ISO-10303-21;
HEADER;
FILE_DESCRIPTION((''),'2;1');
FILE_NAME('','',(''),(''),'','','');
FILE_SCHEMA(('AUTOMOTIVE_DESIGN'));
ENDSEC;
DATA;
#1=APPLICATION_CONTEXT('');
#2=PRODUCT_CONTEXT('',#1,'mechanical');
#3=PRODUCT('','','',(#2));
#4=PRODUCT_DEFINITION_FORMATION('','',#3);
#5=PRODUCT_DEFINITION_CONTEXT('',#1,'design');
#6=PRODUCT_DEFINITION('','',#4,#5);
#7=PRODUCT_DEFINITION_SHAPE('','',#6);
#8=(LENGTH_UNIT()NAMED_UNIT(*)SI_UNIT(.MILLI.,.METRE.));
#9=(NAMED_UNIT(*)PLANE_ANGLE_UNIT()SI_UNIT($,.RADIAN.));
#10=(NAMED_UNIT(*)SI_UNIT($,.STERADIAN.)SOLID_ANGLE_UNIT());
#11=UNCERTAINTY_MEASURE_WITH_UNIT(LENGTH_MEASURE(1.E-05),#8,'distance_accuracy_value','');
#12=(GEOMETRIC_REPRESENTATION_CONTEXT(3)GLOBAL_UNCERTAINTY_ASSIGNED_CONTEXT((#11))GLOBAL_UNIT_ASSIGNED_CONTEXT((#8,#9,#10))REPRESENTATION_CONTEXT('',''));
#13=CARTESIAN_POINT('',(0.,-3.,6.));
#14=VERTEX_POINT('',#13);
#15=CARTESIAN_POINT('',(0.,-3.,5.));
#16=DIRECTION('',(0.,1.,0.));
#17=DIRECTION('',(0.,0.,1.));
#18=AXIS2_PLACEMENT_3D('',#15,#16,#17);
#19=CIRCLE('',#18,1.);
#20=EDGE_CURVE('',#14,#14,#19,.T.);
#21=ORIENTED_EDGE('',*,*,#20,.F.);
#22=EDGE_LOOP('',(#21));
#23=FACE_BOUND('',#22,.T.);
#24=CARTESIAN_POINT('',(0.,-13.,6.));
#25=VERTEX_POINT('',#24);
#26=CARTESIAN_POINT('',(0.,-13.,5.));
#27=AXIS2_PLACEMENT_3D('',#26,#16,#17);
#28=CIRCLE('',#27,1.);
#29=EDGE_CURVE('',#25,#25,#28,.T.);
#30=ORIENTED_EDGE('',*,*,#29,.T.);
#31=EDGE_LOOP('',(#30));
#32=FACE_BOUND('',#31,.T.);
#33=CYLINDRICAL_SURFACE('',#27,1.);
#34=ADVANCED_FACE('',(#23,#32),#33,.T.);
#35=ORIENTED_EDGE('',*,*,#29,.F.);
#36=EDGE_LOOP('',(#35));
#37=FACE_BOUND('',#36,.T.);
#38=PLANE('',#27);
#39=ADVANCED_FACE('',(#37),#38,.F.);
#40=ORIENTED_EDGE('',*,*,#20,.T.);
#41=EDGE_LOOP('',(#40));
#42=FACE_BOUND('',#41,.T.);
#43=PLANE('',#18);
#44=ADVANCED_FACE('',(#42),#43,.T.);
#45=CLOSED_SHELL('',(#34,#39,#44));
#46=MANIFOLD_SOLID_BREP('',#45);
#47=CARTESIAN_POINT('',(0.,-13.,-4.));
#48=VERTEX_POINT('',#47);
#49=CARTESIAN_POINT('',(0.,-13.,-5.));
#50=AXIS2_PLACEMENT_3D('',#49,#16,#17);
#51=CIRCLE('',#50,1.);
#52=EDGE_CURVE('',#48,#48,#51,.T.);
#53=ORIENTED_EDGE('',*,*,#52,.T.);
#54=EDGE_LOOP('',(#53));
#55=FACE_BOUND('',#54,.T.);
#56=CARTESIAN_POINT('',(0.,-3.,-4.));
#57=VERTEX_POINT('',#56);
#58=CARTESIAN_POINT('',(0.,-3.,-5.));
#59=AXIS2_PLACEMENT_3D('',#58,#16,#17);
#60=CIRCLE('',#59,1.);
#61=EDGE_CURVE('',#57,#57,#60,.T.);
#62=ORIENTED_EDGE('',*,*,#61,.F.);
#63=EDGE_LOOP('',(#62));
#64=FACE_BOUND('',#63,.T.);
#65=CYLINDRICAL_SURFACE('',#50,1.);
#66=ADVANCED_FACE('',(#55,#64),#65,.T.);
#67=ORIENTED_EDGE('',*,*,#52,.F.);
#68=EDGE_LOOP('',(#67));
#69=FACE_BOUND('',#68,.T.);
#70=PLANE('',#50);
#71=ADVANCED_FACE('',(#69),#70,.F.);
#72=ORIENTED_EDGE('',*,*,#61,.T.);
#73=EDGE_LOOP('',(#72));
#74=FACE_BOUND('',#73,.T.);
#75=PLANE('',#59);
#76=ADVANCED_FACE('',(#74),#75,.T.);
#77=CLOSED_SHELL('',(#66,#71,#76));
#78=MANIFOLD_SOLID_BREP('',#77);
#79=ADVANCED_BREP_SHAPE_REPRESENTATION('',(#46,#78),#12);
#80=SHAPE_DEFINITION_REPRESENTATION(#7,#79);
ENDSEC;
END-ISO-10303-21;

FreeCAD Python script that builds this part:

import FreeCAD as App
import Part
import Sketcher

V = App.Vector

doc = App.newDocument("Part")
body = doc.addObject("PartDesign::Body", "Body")

sketch1 = doc.addObject("Sketcher::SketchObject", "Sketch")
body.addObject(sketch1)
sketch1.AttachmentSupport = (doc.XZ_Plane, [""])
sketch1.MapMode = "FlatFace"
sketch1.AttachmentOffset = App.Placement(V(0, 0, 3), App.Rotation())
sketch1.addGeometry(Part.Circle(V(0, 5, 0), V(0, 0, 1), 1), False)
sketch1.addConstraint([
    Sketcher.Constraint("PointOnObject", 0, 3, -2),
    Sketcher.Constraint("Diameter", 0, 2.0),
    Sketcher.Constraint("DistanceY", -1, 1, 0, 3, 5.0),
])
pad1 = doc.addObject("PartDesign::Pad", "Pad")
body.addObject(pad1)
pad1.Profile = sketch1
pad1.Length = 10
body2 = doc.addObject("PartDesign::Body", "Body001")

sketch2 = doc.addObject("Sketcher::SketchObject", "Sketch001")
body2.addObject(sketch2)
sketch2.AttachmentSupport = (doc.getObject("XZ_Plane001"), [""])
sketch2.MapMode = "FlatFace"
sketch2.AttachmentOffset = App.Placement(V(0, 0, 3), App.Rotation())
sketch2.addGeometry(Part.Circle(V(0, -5, 0), V(0, 0, 1), 1), False)
sketch2.addConstraint([
    Sketcher.Constraint("PointOnObject", 0, 3, -2),
    Sketcher.Constraint("Diameter", 0, 2.0),
    Sketcher.Constraint("DistanceY", 0, 3, -1, 1, 5.0),
])
pad2 = doc.addObject("PartDesign::Pad", "Pad001")
body2.addObject(pad2)
pad2.Profile = sketch2
pad2.Length = 10

doc.recompute()
